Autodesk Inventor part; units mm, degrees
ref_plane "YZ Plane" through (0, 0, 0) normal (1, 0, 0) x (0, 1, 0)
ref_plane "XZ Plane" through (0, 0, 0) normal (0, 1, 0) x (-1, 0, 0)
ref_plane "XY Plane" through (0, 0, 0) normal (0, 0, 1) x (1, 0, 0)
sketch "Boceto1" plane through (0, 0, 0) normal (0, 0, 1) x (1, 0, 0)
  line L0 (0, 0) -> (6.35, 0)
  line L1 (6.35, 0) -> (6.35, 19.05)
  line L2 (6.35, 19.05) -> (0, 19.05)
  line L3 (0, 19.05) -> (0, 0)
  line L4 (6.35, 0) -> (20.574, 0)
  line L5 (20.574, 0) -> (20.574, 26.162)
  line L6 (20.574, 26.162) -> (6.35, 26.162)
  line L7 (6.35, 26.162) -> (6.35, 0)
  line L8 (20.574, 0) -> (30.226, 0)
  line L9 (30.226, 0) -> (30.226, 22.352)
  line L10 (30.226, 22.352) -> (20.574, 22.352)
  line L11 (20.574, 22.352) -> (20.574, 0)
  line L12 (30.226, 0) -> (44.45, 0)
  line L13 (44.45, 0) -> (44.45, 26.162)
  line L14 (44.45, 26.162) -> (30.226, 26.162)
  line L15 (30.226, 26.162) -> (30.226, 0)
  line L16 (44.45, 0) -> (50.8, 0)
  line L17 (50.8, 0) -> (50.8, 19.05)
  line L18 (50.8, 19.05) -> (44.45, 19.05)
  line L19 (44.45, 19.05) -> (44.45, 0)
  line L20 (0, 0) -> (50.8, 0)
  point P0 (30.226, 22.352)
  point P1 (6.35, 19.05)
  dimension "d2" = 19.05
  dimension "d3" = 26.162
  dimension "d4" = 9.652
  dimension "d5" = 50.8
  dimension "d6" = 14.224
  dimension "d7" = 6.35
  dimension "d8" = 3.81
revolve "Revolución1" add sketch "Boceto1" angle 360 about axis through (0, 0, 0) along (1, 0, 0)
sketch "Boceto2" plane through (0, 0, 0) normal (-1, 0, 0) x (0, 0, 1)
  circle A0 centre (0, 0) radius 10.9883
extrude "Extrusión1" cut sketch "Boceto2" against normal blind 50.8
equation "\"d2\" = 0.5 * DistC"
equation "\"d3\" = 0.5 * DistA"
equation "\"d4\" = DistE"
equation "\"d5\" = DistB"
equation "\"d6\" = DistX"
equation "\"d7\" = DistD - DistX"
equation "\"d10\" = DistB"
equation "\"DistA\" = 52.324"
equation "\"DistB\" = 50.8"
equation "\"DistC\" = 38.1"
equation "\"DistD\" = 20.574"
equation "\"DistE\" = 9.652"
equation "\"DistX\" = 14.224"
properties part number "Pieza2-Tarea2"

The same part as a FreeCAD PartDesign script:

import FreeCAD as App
import Part
import Sketcher

V = App.Vector
Q = App.Units.Quantity

doc = App.newDocument("Part")
body = doc.addObject("PartDesign::Body", "Body")

sketch1 = doc.addObject("Sketcher::SketchObject", "Sketch")
body.addObject(sketch1)
sketch1.AttachmentSupport = (doc.XY_Plane, [""])
sketch1.MapMode = "FlatFace"
sketch1.addGeometry([
    Part.LineSegment(V(0, 19.05, 0), V(0, 0, 0)),
    Part.LineSegment(V(0, 0, 0), V(50.8, 0, 0)),
    Part.LineSegment(V(50.8, 0, 0), V(50.8, 19.05, 0)),
    Part.LineSegment(V(50.8, 19.05, 0), V(44.45, 19.05, 0)),
    Part.LineSegment(V(44.45, 19.05, 0), V(44.45, 26.162, 0)),
    Part.LineSegment(V(44.45, 26.162, 0), V(30.226, 26.162, 0)),
    Part.LineSegment(V(30.226, 26.162, 0), V(30.226, 22.352, 0)),
    Part.LineSegment(V(30.226, 22.352, 0), V(20.574, 22.352, 0)),
    Part.LineSegment(V(20.574, 22.352, 0), V(20.574, 26.162, 0)),
    Part.LineSegment(V(20.574, 26.162, 0), V(6.35, 26.162, 0)),
    Part.LineSegment(V(6.35, 26.162, 0), V(6.35, 19.05, 0)),
    Part.LineSegment(V(6.35, 19.05, 0), V(0, 19.05, 0)),
], False)
sketch1.addConstraint([
    Sketcher.Constraint("Coincident", 0, 2, 1, 1),
    Sketcher.Constraint("Coincident", 1, 2, 2, 1),
    Sketcher.Constraint("Coincident", 2, 2, 3, 1),
    Sketcher.Constraint("Coincident", 3, 2, 4, 1),
    Sketcher.Constraint("Coincident", 4, 2, 5, 1),
    Sketcher.Constraint("Coincident", 5, 2, 6, 1),
    Sketcher.Constraint("Coincident", 6, 2, 7, 1),
    Sketcher.Constraint("Coincident", 7, 2, 8, 1),
    Sketcher.Constraint("Coincident", 8, 2, 9, 1),
    Sketcher.Constraint("Coincident", 9, 2, 10, 1),
    Sketcher.Constraint("Coincident", 10, 2, 11, 1),
    Sketcher.Constraint("Coincident", 11, 2, 0, 1),
    Sketcher.Constraint("Vertical", 0),
    Sketcher.Constraint("Horizontal", 1),
    Sketcher.Constraint("Vertical", 2),
    Sketcher.Constraint("Horizontal", 3),
    Sketcher.Constraint("Vertical", 4),
    Sketcher.Constraint("Horizontal", 5),
    Sketcher.Constraint("Vertical", 6),
    Sketcher.Constraint("Horizontal", 7),
    Sketcher.Constraint("Vertical", 8),
    Sketcher.Constraint("Horizontal", 9),
    Sketcher.Constraint("Vertical", 10),
    Sketcher.Constraint("Horizontal", 11),
    Sketcher.Constraint("Coincident", 0, 2, -1, 1),
    Sketcher.Constraint("Horizontal", 5, 2, 8, 2),
    Sketcher.Constraint("Horizontal", 3, 2, 10, 2),
    Sketcher.Constraint("Equal", 5, 9),
    Sketcher.Constraint("Equal", 3, 11),
    Sketcher.Constraint("DistanceX", 1, 1, 1, 2, Q("2 in")),
    Sketcher.Constraint("DistanceX", 3, 2, 3, 1, Q("0.25 in")),
    Sketcher.Constraint("DistanceX", 5, 2, 5, 1, Q("0.56 in")),
    Sketcher.Constraint("DistanceY", 0, 2, 0, 1, Q("0.75 in")),
    Sketcher.Constraint("DistanceY", 6, 2, 6, 1, Q("0.15 in")),
    Sketcher.Constraint("DistanceY", -1, 1, 4, 2, Q("1.03 in")),
])
revolution = doc.addObject("PartDesign::Revolution", "Revolution")
body.addObject(revolution)
revolution.Profile = sketch1
revolution.ReferenceAxis = (sketch1, ["H_Axis"])
revolution.Angle = 360

sketch2 = doc.addObject("Sketcher::SketchObject", "Sketch001")
body.addObject(sketch2)
sketch2.AttachmentSupport = (doc.YZ_Plane, [""])
sketch2.MapMode = "FlatFace"
sketch2.addGeometry(Part.Circle(V(0, 0, 0), V(0, 0, 1), 10.9883), False)
sketch2.addConstraint([
    Sketcher.Constraint("Coincident", 0, 3, -1, 1),
    Sketcher.Constraint("Diameter", 0, 21.9766),
])
pocket1 = doc.addObject("PartDesign::Pocket", "Pocket")
body.addObject(pocket1)
pocket1.Profile = sketch2
pocket1.Length = Q("2 in")
pocket1.Reversed = True

doc.recompute()
